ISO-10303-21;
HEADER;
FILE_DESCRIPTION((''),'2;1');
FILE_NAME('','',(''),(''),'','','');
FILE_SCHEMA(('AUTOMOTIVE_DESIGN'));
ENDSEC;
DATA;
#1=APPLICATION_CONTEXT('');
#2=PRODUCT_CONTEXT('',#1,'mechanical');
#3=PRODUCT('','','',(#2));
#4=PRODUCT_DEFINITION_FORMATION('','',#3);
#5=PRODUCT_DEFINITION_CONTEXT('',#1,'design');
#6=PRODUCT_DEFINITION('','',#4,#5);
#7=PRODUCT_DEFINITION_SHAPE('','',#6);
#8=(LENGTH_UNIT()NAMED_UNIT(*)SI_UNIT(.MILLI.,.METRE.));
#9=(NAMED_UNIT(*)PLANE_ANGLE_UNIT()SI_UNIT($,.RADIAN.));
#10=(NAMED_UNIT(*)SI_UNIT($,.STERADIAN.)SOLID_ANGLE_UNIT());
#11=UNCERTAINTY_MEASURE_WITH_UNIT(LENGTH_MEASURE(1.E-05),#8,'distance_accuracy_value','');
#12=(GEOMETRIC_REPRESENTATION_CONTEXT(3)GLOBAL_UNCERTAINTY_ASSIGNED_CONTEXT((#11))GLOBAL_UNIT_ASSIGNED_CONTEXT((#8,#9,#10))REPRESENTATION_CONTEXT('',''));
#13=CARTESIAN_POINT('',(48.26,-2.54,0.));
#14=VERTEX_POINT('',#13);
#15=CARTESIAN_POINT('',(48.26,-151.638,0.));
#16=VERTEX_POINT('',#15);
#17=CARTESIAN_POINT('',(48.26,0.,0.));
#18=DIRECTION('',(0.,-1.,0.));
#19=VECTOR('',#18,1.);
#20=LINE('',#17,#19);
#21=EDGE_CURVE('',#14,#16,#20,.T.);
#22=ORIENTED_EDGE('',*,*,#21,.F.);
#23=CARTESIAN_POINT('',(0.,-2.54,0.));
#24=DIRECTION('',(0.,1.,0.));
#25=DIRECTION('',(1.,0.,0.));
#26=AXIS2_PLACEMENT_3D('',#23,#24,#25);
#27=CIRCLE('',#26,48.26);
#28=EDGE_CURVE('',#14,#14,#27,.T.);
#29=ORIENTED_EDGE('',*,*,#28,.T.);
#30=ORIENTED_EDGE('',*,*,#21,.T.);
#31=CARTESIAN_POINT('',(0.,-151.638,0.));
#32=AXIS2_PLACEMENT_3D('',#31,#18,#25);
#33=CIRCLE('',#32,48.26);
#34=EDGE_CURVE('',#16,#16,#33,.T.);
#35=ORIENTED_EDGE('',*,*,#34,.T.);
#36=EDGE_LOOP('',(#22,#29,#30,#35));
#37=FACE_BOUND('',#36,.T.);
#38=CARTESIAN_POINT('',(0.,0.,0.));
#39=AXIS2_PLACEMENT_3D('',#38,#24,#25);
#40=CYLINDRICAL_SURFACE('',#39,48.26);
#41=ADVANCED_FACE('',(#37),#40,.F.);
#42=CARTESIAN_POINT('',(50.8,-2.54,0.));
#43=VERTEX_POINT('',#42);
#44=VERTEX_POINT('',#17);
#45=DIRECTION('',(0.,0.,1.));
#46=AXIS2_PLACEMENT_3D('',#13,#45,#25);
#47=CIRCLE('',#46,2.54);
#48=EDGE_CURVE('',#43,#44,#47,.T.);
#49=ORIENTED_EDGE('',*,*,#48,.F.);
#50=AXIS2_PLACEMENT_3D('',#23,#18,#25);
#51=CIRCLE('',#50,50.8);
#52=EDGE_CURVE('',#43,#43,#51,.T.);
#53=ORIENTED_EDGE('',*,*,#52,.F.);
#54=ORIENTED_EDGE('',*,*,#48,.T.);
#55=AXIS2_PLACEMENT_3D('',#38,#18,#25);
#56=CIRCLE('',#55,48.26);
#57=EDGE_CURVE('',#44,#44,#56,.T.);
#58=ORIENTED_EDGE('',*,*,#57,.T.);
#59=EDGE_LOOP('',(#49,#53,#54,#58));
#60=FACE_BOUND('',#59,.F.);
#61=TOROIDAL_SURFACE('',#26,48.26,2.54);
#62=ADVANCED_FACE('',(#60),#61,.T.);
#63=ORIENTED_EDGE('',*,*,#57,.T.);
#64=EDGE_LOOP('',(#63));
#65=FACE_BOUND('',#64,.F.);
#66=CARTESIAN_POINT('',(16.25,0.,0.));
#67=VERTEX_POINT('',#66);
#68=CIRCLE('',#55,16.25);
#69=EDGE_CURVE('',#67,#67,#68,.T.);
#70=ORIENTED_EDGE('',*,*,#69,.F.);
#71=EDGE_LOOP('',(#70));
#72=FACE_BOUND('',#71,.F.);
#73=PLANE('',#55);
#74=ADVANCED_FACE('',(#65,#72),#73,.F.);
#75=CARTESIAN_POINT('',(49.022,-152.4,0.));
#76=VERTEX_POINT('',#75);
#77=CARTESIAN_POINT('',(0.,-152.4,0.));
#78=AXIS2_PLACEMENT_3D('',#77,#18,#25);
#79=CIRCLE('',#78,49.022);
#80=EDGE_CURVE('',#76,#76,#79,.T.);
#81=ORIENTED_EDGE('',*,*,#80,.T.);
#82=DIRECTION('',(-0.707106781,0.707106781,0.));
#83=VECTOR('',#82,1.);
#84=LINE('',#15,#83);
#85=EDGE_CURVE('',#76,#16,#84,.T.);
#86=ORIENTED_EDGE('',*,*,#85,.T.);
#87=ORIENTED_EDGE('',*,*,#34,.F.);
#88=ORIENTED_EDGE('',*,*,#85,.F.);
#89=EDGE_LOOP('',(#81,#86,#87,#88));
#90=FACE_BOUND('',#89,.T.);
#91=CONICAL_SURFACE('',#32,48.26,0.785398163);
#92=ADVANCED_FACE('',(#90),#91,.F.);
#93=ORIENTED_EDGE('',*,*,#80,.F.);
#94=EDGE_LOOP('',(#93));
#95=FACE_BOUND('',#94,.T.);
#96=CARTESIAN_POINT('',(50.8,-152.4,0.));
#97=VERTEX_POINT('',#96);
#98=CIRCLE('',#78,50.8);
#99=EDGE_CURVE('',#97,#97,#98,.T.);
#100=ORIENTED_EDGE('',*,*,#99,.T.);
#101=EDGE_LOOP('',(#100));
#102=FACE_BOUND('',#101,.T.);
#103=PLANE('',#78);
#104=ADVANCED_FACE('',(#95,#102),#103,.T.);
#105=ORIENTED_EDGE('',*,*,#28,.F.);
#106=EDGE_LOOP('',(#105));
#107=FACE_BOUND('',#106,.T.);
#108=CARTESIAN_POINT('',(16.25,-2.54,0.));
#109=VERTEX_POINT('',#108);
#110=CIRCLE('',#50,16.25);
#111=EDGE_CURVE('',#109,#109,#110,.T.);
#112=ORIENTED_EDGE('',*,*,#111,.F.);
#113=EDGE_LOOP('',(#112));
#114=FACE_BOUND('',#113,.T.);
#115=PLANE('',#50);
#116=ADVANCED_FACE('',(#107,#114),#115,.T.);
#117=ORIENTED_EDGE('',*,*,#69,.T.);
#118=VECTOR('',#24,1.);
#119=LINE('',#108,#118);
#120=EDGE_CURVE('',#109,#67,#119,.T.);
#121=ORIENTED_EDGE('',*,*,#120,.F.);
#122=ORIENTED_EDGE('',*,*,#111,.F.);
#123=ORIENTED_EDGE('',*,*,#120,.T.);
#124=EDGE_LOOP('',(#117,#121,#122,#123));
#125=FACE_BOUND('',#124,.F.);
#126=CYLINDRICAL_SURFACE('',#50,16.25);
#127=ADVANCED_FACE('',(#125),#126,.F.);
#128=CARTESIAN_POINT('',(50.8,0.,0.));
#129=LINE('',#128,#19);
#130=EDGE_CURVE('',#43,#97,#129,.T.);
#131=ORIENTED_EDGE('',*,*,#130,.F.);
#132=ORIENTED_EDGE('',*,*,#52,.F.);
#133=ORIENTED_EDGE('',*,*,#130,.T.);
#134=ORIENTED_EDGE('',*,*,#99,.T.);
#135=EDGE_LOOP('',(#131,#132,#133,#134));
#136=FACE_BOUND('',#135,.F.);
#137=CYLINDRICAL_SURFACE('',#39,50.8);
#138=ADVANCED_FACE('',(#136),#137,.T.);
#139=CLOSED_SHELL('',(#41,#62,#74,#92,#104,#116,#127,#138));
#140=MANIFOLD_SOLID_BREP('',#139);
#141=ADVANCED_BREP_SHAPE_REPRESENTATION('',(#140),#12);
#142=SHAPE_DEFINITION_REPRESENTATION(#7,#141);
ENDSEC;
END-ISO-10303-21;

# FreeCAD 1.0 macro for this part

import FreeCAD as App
import Part
import Sketcher

V = App.Vector
Q = App.Units.Quantity


def edges_at(feature, points):
    """Names of the edges that pass closest to the given points."""
    edges = feature.Shape.Edges
    near = lambda p: min(range(len(edges)), key=lambda i: edges[i].distToShape(Part.Vertex(*p))[0])
    return sorted({f"Edge{near(p) + 1}" for p in points})


def faces_at(feature, points):
    """Names of the faces that lie closest to the given points."""
    faces = feature.Shape.Faces
    near = lambda p: min(range(len(faces)), key=lambda i: faces[i].distToShape(Part.Vertex(*p))[0])
    return sorted({f"Face{near(p) + 1}" for p in points})

doc = App.newDocument("Part")
body = doc.addObject("PartDesign::Body", "Body")

# Sketch on XZ plane
sketch1 = body.newObject("Sketcher::SketchObject", "Sketch")
sketch1.AttachmentSupport = (doc.getObject("XZ_Plane"), [""])
sketch1.MapMode = "FlatFace"
sketch1.addGeometry(Part.Circle(V(0, 0, 0), V(0, 0, 1), 51), False)
sketch1.addConstraint(Sketcher.Constraint("Coincident", 0, 3, -1, 1))
sketch1.addConstraint(Sketcher.Constraint("Diameter", 0, Q("4 in")))
pad1 = body.newObject("PartDesign::Pad", "Pad")
pad1.Profile = sketch1
pad1.Length = Q("6 in")
doc.recompute()

thickness = body.newObject("PartDesign::Thickness", "Thickness")
thickness.Base = (pad1, faces_at(pad1, [(0, -152.4, 0)]))
thickness.Value = Q("0.1 in")
thickness.Reversed = True
thickness.Join = "Arc"

# Sketch on XZ plane
sketch2 = body.newObject("Sketcher::SketchObject", "Sketch001")
sketch2.AttachmentSupport = (doc.getObject("XZ_Plane"), [""])
sketch2.MapMode = "FlatFace"
sketch2.AttachmentOffset = App.Placement(V(0, 0, 0.1 * 25.4), App.Rotation())
sketch2.addGeometry(Part.Circle(V(0, 0, 0), V(0, 0, 1), 16), False)
sketch2.addConstraint(Sketcher.Constraint("Coincident", 0, 3, -1, 1))
sketch2.addConstraint(Sketcher.Constraint("Diameter", 0, Q("32.5 mm")))
pocket1 = body.newObject("PartDesign::Pocket", "Pocket")
pocket1.Profile = sketch2
pocket1.Type = "ThroughAll"
pocket1.Midplane = True
doc.recompute()

chamfer = body.newObject("PartDesign::Chamfer", "Chamfer")
chamfer.Base = (pocket1, edges_at(pocket1, [(-48.26, -152.4, 0)]))
chamfer.Size = Q("0.03 in")
doc.recompute()

fillet = body.newObject("PartDesign::Fillet", "Fillet")
fillet.Base = (chamfer, edges_at(chamfer, [(-50.8, 0, 0)]))
fillet.Radius = Q("0.1 in")

doc.recompute()
